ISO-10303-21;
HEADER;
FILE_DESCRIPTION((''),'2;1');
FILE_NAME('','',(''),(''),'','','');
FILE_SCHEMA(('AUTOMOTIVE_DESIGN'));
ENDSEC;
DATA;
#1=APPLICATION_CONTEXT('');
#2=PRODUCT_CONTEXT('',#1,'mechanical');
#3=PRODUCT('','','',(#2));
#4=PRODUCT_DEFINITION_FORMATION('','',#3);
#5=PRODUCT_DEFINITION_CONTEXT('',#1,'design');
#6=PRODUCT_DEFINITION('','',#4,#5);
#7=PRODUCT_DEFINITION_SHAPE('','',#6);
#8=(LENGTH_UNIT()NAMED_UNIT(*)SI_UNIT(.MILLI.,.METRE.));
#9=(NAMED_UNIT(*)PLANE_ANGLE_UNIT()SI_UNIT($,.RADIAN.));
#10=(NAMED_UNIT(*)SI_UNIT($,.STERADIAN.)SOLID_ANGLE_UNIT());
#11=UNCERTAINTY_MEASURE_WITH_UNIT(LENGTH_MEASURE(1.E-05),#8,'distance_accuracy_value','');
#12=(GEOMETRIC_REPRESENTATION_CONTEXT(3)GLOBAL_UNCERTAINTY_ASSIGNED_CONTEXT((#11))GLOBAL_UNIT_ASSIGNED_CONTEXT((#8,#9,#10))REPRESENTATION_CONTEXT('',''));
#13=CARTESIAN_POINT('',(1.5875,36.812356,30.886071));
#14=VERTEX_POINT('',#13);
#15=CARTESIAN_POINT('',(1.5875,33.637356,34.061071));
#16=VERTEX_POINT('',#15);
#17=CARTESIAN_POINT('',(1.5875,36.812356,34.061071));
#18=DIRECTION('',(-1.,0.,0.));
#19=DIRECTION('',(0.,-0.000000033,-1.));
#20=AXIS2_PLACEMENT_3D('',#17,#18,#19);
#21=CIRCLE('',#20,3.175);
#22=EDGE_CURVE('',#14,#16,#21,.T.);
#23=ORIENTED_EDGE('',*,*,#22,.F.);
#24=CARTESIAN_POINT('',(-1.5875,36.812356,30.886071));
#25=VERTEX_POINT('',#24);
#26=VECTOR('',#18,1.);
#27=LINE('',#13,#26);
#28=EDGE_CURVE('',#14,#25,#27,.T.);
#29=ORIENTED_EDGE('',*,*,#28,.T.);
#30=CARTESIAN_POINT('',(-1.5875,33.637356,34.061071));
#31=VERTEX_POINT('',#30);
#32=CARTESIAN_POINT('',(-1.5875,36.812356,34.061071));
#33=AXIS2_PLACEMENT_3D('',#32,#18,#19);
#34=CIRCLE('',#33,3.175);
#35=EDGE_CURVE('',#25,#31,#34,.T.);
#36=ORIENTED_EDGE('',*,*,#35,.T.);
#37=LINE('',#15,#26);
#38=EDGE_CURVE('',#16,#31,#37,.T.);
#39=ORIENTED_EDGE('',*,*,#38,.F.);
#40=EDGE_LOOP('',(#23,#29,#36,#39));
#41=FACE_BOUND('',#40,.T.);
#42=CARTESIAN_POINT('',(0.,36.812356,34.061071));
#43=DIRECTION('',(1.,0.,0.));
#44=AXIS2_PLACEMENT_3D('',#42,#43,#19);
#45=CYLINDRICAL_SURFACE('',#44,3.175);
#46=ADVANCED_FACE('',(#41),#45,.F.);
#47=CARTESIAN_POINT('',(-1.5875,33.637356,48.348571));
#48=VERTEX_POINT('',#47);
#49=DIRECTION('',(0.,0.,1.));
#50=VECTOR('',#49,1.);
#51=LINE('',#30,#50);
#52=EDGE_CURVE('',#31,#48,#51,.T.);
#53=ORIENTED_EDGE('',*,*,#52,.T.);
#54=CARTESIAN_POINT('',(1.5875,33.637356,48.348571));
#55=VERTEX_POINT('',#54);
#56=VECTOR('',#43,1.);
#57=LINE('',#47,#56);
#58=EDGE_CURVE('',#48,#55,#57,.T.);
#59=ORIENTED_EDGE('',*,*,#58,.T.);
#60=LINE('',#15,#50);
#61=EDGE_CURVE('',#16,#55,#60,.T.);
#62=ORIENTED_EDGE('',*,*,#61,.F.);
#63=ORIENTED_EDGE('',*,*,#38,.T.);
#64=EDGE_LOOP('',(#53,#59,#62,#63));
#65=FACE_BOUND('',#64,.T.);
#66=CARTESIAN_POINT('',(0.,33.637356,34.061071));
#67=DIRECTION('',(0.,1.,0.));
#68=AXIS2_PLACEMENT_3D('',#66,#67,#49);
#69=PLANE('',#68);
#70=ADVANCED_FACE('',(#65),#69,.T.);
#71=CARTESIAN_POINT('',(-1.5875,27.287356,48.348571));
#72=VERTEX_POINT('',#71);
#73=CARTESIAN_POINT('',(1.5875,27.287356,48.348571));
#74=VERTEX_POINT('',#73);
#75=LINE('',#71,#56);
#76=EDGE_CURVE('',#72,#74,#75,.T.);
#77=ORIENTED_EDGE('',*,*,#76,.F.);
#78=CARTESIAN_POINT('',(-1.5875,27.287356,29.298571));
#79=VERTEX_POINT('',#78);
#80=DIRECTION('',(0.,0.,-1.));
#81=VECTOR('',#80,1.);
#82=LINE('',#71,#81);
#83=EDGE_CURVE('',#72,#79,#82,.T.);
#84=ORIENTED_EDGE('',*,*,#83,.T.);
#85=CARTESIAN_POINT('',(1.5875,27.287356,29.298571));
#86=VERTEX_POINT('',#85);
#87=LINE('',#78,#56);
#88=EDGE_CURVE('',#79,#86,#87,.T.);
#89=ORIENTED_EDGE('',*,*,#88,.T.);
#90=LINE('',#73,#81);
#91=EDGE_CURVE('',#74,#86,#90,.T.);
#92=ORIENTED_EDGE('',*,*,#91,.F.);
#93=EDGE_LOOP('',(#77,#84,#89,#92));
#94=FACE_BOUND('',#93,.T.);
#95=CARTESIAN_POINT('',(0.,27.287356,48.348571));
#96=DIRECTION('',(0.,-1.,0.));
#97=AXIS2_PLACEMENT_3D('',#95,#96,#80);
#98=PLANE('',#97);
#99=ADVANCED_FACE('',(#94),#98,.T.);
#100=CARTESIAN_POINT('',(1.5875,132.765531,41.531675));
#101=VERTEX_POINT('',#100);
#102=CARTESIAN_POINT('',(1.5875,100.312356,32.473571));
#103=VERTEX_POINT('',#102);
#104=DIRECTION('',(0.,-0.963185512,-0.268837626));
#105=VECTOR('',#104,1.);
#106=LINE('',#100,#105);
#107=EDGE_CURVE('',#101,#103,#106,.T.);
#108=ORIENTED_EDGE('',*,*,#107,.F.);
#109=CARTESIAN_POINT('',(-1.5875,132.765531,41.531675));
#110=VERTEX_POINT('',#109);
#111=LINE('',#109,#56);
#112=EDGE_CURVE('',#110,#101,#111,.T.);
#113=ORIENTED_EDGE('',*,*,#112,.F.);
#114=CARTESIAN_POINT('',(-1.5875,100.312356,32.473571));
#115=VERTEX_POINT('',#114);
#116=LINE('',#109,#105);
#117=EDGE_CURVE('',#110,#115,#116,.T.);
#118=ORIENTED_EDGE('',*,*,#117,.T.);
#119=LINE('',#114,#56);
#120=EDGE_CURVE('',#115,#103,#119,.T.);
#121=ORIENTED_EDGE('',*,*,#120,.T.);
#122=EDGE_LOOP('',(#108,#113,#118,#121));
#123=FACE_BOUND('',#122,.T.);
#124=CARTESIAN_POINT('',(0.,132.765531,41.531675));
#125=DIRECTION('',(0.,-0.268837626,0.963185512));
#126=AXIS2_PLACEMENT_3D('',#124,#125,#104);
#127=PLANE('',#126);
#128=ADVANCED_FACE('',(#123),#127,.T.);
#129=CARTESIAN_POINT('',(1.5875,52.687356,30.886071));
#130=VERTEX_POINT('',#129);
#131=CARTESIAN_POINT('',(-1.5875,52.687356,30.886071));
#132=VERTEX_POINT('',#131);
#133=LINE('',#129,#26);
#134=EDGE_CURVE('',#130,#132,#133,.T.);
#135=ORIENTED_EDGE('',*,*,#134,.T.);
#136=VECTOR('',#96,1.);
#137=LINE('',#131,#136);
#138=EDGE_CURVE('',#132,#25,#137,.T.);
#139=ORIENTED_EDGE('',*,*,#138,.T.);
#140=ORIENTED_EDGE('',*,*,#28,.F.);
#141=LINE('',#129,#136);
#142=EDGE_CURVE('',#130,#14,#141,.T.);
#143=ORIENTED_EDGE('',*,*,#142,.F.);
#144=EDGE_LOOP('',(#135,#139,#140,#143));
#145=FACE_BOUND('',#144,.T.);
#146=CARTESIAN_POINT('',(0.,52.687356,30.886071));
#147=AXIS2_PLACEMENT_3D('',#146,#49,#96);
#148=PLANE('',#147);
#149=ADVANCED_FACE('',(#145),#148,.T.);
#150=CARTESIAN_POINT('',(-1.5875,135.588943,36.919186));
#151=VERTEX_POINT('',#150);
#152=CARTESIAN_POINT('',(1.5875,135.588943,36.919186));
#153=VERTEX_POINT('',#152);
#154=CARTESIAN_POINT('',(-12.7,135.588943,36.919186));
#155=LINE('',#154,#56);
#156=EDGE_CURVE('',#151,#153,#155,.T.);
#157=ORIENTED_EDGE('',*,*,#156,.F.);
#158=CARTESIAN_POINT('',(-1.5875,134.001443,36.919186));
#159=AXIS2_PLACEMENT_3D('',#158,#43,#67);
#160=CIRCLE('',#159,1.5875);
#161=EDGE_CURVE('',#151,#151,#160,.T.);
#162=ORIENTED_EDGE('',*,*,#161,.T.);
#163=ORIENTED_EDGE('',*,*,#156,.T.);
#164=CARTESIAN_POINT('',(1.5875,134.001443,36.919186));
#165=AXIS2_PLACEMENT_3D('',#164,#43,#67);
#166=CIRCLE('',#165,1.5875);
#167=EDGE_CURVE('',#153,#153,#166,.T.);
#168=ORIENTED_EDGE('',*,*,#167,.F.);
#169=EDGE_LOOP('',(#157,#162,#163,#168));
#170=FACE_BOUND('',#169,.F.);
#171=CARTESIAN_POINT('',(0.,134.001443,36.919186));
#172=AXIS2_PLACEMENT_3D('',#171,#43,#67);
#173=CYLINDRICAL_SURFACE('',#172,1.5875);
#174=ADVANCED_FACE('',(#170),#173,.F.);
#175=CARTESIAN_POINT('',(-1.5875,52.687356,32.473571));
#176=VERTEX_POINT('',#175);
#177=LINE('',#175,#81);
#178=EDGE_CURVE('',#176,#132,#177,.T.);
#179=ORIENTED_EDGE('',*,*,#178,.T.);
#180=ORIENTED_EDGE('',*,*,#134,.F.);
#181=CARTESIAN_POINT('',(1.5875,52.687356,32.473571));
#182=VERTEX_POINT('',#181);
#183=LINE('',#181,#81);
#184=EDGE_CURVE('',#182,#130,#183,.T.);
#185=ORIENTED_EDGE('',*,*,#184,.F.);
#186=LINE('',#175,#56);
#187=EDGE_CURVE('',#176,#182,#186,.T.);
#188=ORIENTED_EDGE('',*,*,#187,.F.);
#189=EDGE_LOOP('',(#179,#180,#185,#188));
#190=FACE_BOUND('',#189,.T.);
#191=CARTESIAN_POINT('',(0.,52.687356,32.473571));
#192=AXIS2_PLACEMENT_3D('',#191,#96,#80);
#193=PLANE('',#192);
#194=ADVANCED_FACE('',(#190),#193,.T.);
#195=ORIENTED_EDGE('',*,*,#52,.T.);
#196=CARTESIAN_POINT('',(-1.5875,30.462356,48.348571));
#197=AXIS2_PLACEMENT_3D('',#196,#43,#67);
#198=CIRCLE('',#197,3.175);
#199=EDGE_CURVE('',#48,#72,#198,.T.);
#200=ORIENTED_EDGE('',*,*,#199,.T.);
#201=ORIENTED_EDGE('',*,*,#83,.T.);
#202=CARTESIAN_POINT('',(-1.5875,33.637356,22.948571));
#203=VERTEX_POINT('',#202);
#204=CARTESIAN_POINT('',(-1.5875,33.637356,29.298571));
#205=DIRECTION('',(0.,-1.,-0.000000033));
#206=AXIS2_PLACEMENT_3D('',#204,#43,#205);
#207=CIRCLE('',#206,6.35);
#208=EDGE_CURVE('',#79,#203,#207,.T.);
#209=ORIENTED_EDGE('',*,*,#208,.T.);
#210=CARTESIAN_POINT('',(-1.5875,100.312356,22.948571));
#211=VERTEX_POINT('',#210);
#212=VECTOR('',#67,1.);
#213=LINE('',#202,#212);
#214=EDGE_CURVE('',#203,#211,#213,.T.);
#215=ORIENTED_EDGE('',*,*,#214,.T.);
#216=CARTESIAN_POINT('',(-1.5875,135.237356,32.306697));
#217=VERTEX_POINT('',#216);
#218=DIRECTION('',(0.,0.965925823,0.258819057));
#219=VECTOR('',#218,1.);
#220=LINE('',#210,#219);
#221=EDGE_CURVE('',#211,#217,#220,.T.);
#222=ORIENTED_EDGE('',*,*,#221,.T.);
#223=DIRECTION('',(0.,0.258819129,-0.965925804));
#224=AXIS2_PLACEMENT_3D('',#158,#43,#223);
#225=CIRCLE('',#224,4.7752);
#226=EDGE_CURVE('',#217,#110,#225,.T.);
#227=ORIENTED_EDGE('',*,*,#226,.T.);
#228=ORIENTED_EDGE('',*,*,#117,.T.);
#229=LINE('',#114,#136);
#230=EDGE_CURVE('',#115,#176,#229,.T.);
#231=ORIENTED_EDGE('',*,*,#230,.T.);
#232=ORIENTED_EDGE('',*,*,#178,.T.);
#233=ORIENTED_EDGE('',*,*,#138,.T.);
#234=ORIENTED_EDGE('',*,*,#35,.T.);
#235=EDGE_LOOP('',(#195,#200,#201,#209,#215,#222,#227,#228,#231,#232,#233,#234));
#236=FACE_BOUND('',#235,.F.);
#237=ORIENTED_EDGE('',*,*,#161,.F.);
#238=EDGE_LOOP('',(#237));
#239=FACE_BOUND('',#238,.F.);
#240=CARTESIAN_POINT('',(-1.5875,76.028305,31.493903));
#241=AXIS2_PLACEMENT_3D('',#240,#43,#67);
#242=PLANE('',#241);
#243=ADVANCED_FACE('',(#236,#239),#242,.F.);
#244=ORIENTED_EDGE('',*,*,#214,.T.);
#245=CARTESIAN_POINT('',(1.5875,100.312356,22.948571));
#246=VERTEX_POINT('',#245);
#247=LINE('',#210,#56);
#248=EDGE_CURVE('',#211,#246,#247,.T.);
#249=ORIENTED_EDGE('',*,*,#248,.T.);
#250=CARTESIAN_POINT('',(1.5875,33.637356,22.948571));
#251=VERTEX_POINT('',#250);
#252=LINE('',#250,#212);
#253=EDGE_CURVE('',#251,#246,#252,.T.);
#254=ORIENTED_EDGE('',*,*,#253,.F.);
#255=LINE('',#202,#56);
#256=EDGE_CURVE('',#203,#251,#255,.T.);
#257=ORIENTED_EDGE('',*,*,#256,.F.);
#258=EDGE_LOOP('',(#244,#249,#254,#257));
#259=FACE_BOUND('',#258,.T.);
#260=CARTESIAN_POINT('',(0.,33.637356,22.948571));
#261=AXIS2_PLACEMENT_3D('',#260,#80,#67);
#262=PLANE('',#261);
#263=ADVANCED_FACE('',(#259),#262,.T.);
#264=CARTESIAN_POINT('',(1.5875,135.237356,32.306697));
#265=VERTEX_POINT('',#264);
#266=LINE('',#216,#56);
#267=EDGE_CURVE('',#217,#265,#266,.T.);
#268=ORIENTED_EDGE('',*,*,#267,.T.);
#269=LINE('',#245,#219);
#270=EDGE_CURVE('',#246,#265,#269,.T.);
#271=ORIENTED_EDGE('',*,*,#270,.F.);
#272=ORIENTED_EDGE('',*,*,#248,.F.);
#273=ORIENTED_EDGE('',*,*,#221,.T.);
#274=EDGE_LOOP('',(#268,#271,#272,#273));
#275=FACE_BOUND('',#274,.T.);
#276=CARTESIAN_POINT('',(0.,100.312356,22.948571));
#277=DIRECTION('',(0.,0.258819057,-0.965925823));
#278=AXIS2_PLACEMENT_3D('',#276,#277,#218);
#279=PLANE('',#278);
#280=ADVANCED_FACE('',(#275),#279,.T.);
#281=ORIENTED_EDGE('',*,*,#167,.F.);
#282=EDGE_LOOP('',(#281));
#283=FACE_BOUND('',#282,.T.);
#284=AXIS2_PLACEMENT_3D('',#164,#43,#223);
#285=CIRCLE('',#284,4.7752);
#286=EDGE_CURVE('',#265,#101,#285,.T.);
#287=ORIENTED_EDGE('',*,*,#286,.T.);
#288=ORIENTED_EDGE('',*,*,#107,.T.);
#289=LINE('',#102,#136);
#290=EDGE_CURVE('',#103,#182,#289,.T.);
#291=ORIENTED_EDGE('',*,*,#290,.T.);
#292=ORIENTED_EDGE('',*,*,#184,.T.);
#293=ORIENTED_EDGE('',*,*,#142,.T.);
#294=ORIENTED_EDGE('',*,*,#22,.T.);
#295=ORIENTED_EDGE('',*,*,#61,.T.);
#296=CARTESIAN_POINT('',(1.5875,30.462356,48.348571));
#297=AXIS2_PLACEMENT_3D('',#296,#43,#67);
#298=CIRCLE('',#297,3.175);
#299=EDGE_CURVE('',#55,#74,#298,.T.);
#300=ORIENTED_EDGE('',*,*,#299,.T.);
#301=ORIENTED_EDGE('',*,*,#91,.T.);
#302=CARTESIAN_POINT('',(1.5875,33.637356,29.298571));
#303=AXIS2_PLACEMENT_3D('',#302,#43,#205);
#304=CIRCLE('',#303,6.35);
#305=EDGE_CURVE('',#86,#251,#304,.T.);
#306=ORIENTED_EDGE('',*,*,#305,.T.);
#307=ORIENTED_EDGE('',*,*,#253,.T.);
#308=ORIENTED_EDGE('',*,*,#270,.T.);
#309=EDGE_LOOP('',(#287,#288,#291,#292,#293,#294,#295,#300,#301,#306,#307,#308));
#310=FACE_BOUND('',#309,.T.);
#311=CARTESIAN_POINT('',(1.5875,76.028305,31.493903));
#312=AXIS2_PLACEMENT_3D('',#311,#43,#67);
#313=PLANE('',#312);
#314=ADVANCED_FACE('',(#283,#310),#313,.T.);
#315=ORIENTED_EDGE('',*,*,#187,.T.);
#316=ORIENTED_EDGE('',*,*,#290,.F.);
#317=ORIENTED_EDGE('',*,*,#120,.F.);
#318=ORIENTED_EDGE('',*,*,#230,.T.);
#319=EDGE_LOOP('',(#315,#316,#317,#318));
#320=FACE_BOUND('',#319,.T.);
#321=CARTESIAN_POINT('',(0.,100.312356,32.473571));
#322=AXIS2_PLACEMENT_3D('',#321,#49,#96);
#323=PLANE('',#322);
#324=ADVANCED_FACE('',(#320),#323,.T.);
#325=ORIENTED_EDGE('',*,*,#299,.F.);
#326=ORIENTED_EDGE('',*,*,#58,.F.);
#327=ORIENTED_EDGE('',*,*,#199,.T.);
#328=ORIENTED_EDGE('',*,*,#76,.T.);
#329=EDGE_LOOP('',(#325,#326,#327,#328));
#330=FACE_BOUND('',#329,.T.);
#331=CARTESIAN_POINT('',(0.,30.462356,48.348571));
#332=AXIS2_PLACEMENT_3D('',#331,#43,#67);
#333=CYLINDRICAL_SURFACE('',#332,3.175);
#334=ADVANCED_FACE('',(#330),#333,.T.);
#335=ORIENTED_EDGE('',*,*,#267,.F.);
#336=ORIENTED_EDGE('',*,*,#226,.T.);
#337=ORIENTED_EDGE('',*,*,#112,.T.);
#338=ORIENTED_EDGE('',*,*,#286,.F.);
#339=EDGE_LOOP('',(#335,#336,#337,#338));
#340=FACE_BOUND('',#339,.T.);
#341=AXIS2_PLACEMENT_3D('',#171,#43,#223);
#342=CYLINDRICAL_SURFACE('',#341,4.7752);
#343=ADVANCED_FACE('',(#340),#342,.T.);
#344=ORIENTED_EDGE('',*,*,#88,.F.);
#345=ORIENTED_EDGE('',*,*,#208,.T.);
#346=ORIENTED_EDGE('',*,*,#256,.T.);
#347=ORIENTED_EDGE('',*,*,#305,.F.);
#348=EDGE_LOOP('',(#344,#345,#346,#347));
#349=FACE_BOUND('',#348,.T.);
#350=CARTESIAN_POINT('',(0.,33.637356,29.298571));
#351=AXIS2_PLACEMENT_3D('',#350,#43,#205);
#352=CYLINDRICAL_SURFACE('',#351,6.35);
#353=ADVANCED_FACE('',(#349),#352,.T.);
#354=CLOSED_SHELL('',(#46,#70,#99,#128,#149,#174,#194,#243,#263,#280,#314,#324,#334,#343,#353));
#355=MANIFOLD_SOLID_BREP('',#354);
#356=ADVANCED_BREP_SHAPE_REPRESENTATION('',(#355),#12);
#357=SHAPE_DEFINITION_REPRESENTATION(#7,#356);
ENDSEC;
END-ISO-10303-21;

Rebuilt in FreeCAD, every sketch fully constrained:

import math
import FreeCAD as App
import Part
import Sketcher
Q = App.Units.Quantity

doc = App.newDocument("Part")
body = doc.addObject("PartDesign::Body", "Body")

sketch1 = body.newObject("Sketcher::SketchObject", "Sketch")
sketch1.AttachmentSupport = (doc.getObject("YZ_Plane"), [""])
sketch1.MapMode = "FlatFace"
sketch1.addGeometry(Part.LineSegment(App.Vector(33.6, 34.1, 0), App.Vector(33.6, 48.3, 0)), False)
sketch1.addGeometry(Part.ArcOfCircle(Part.Circle(App.Vector(30.5, 48.3, 0), App.Vector(0, 0, 1), 3.2), math.radians(0), math.radians(180)), False)
sketch1.addGeometry(Part.LineSegment(App.Vector(27.3, 48.3, 0), App.Vector(27.3, 29.3, 0)), False)
sketch1.addGeometry(Part.ArcOfCircle(Part.Circle(App.Vector(33.6, 29.3, 0), App.Vector(0, 0, 1), 6.4), math.radians(-180), math.radians(-90)), False)
sketch1.addGeometry(Part.LineSegment(App.Vector(33.6, 22.9, 0), App.Vector(100.3, 22.9, 0)), False)
sketch1.addGeometry(Part.LineSegment(App.Vector(100.3, 22.9, 0), App.Vector(135.2, 32.3, 0)), False)
sketch1.addGeometry(Part.ArcOfCircle(Part.Circle(App.Vector(134, 36.9, 0), App.Vector(0, 0, 1), 4.8), math.radians(-75), math.radians(105)), False)
sketch1.addGeometry(Part.LineSegment(App.Vector(132.8, 41.5, 0), App.Vector(100.3, 32.5, 0)), False)
sketch1.addGeometry(Part.LineSegment(App.Vector(100.3, 32.5, 0), App.Vector(52.7, 32.5, 0)), False)
sketch1.addGeometry(Part.LineSegment(App.Vector(52.7, 32.5, 0), App.Vector(52.7, 30.9, 0)), False)
sketch1.addGeometry(Part.LineSegment(App.Vector(52.7, 30.9, 0), App.Vector(36.8, 30.9, 0)), False)
sketch1.addGeometry(Part.ArcOfCircle(Part.Circle(App.Vector(36.8, 34.1, 0), App.Vector(0, 0, 1), 3.2), math.radians(-180), math.radians(-90)), False)
sketch1.addConstraint(Sketcher.Constraint("Tangent", 0, 2, 1, 1))
sketch1.addConstraint(Sketcher.Constraint("Tangent", 1, 2, 2, 1))
sketch1.addConstraint(Sketcher.Constraint("Tangent", 2, 2, 3, 1))
sketch1.addConstraint(Sketcher.Constraint("Tangent", 3, 2, 4, 1))
sketch1.addConstraint(Sketcher.Constraint("Coincident", 4, 2, 5, 1))
sketch1.addConstraint(Sketcher.Constraint("Tangent", 5, 2, 6, 1))
sketch1.addConstraint(Sketcher.Constraint("Coincident", 6, 2, 7, 1))
sketch1.addConstraint(Sketcher.Constraint("Coincident", 7, 2, 8, 1))
sketch1.addConstraint(Sketcher.Constraint("Coincident", 8, 2, 9, 1))
sketch1.addConstraint(Sketcher.Constraint("Coincident", 9, 2, 10, 1))
sketch1.addConstraint(Sketcher.Constraint("Tangent", 10, 2, 11, 2))
sketch1.addConstraint(Sketcher.Constraint("Tangent", 11, 1, 0, 1))
sketch1.addConstraint(Sketcher.Constraint("Vertical", 0))
sketch1.addConstraint(Sketcher.Constraint("Vertical", 2))
sketch1.addConstraint(Sketcher.Constraint("Horizontal", 4))
sketch1.addConstraint(Sketcher.Constraint("Horizontal", 8))
sketch1.addConstraint(Sketcher.Constraint("Vertical", 9))
sketch1.addConstraint(Sketcher.Constraint("Horizontal", 10))
sketch1.addConstraint(Sketcher.Constraint("Equal", 1, 11))
sketch1.addConstraint(Sketcher.Constraint("Vertical", 3, 3, 0, 2))
sketch1.addConstraint(Sketcher.Constraint("Vertical", 4, 2, 7, 2))
sketch1.addConstraint(Sketcher.Constraint("Radius", 3, Q("0.25 in")))
sketch1.addConstraint(Sketcher.Constraint("Angle", 5, Q("15.000001 deg")))
sketch1.addConstraint(Sketcher.Constraint("Radius", 6, Q("0.188 in")))
sketch1.addConstraint(Sketcher.Constraint("DistanceY", 3, 2, 0, 2, Q("1 in")))
sketch1.addConstraint(Sketcher.Constraint("DistanceX", 3, 3, 5, 2, Q("4 in")))
sketch1.addConstraint(Sketcher.Constraint("DistanceX", 2, 2, 8, 2, Q("1 in")))
sketch1.addConstraint(Sketcher.Constraint("DistanceX", 11, 3, 4, 2, Q("2.5 in")))
sketch1.addConstraint(Sketcher.Constraint("DistanceY", 0, 1, 0, 2, Q("0.5625 in")))
sketch1.addConstraint(Sketcher.Constraint("DistanceY", 9, 2, 9, 1, Q("0.0625 in")))
sketch1.addConstraint(Sketcher.Constraint("DistanceY", -1, 1, 1, 3, Q("48.348571 mm")))
sketch1.addConstraint(Sketcher.Constraint("DistanceX", -1, 1, 6, 2, Q("132.765531 mm")))
sketch1.addConstraint(Sketcher.Constraint("DistanceX", 6, 2, 6, 3, Q("1.235912 mm")))
pad1 = body.newObject("PartDesign::Pad", "Pad")
pad1.Profile = sketch1
pad1.Length = Q("0.125 in")
pad1.Midplane = True

sketch2 = body.newObject("Sketcher::SketchObject", "Sketch001")
sketch2.AttachmentSupport = (doc.getObject("YZ_Plane"), [""])
sketch2.MapMode = "FlatFace"
sketch2.addGeometry(Part.Circle(App.Vector(134, 36.9, 0), App.Vector(0, 0, 1), 1.6), False)
sketch2.addConstraint(Sketcher.Constraint("Diameter", 0, Q("0.125 in")))
sketch2.addConstraint(Sketcher.Constraint("DistanceX", -1, 1, 0, 3, Q("134.001443 mm")))
sketch2.addConstraint(Sketcher.Constraint("DistanceY", -1, 1, 0, 3, Q("36.919186 mm")))
pocket1 = body.newObject("PartDesign::Pocket", "Pocket")
pocket1.Profile = sketch2
pocket1.Length = Q("1 in")
pocket1.Midplane = True

doc.recompute()
